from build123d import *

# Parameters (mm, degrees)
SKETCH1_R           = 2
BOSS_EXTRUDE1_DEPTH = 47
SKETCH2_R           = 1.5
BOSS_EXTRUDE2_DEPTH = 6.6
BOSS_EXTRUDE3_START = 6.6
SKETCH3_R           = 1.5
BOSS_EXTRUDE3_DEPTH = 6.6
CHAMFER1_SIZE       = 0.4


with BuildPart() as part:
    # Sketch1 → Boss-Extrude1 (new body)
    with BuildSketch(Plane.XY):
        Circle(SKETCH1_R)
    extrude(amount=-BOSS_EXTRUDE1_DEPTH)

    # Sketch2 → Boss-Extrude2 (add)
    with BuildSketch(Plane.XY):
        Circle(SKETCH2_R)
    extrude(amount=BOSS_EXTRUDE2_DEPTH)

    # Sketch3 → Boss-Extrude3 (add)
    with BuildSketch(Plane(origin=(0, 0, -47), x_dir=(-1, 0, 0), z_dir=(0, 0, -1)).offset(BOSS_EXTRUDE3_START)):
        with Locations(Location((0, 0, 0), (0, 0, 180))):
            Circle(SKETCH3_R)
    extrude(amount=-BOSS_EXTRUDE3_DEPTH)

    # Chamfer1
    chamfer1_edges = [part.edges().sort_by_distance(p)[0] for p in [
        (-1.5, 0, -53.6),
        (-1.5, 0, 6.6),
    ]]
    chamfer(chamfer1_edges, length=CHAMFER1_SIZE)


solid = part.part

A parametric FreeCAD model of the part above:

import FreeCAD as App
import Part
import Sketcher
from FreeCAD import Vector
Q = App.Units.Quantity


def edges_at(feature, points):
    """Names of the edges that pass closest to the given points."""
    edges = feature.Shape.Edges
    near = lambda p: min(range(len(edges)), key=lambda i: edges[i].distToShape(Part.Vertex(*p))[0])
    return sorted({f"Edge{near(p) + 1}" for p in points})

doc = App.newDocument("Part")
body = doc.addObject("PartDesign::Body", "Body")

# Sketch on XY plane
sketch1 = body.newObject("Sketcher::SketchObject", "Sketch")
sketch1.AttachmentSupport = (doc.getObject("XY_Plane"), [""])
sketch1.MapMode = "FlatFace"
sketch1.addGeometry(Part.Circle(Vector(0, 0, 0), Vector(0, 0, 1), 2), False)
sketch1.addConstraint(Sketcher.Constraint("Coincident", 0, 3, -1, 1))
sketch1.addConstraint(Sketcher.Constraint("Diameter", 0, Q("4 mm")))
pad1 = body.newObject("PartDesign::Pad", "Pad")
pad1.Profile = sketch1
pad1.Length = 47
pad1.Reversed = True

# Sketch on XY plane
sketch2 = body.newObject("Sketcher::SketchObject", "Sketch001")
sketch2.AttachmentSupport = (doc.getObject("XY_Plane"), [""])
sketch2.MapMode = "FlatFace"
sketch2.addGeometry(Part.Circle(Vector(0, 0, 0), Vector(0, 0, 1), 1.5), False)
sketch2.addConstraint(Sketcher.Constraint("Coincident", 0, 3, -1, 1))
sketch2.addConstraint(Sketcher.Constraint("Diameter", 0, Q("3 mm")))
pad2 = body.newObject("PartDesign::Pad", "Pad001")
pad2.Profile = sketch2
pad2.Length = 6.6

# Sketch on XY plane
sketch3 = body.newObject("Sketcher::SketchObject", "Sketch002")
sketch3.AttachmentSupport = (doc.getObject("XY_Plane"), [""])
sketch3.MapMode = "FlatFace"
sketch3.AttachmentOffset = App.Placement(Vector(0, 0, -53.6), App.Rotation())
sketch3.addGeometry(Part.Circle(Vector(0, 0, 0), Vector(0, 0, 1), 1.5), False)
sketch3.addConstraint(Sketcher.Constraint("Coincident", 0, 3, -1, 1))
sketch3.addConstraint(Sketcher.Constraint("Diameter", 0, Q("3 mm")))
pad3 = body.newObject("PartDesign::Pad", "Pad002")
pad3.Profile = sketch3
pad3.Length = 6.6
doc.recompute()

chamfer = body.newObject("PartDesign::Chamfer", "Chamfer")
chamfer.Base = (pad3, edges_at(pad3, [(-1.5, 0, -53.6), (-1.5, 0, 6.6)]))
chamfer.Size = 0.4

doc.recompute()
